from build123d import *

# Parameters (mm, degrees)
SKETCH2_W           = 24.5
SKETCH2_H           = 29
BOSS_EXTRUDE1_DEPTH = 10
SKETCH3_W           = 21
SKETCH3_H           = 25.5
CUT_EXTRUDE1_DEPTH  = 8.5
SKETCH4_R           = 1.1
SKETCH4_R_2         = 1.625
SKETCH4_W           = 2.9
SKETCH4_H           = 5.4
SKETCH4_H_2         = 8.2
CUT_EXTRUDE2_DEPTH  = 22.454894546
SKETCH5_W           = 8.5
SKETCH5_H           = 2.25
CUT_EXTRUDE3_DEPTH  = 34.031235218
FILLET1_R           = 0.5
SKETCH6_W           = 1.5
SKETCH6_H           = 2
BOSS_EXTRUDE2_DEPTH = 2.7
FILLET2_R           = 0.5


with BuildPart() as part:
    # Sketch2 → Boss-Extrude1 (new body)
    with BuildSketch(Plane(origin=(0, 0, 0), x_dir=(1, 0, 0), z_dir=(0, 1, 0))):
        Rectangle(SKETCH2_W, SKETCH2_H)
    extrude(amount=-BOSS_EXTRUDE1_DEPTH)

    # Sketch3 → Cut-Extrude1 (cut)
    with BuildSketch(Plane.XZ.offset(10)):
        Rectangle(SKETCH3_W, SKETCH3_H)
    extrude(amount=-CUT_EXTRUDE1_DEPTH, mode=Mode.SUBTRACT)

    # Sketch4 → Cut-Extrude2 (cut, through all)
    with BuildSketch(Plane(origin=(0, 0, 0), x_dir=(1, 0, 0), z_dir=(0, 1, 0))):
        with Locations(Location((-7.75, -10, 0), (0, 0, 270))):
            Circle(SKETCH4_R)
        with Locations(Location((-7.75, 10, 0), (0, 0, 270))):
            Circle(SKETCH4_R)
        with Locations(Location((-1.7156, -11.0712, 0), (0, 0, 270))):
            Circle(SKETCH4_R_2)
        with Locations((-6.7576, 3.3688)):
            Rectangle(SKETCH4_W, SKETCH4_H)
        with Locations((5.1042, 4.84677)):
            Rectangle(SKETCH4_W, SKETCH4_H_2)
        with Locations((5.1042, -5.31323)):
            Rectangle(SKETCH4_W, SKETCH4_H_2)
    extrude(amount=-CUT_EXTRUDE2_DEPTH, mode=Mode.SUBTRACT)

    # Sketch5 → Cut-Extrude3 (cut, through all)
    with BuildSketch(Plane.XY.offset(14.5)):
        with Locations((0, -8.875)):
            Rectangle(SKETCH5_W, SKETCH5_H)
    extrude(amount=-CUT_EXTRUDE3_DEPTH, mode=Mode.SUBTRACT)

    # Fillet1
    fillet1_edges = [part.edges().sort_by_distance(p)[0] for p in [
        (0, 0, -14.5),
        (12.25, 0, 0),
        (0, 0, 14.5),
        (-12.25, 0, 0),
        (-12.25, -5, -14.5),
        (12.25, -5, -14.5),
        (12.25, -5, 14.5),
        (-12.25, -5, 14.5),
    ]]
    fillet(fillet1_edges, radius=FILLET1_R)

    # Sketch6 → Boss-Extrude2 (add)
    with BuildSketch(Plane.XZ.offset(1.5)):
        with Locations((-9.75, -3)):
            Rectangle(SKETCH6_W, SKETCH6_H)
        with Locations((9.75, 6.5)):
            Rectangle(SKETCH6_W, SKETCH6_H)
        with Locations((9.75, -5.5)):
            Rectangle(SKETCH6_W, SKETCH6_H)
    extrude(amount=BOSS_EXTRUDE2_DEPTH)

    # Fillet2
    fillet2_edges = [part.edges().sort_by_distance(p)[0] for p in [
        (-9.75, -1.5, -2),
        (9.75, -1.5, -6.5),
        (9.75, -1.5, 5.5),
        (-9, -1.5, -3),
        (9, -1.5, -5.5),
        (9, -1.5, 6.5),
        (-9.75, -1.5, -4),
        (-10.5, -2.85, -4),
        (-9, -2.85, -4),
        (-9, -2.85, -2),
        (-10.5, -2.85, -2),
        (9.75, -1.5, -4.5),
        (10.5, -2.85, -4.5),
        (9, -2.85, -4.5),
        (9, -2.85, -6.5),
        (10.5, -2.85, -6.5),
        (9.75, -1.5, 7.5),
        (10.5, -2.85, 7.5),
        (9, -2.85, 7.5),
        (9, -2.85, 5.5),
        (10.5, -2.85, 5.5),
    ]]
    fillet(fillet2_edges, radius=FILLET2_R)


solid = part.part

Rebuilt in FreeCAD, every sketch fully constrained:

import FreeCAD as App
import Part
import Sketcher
from FreeCAD import Vector
Q = App.Units.Quantity


def edges_at(feature, points):
    """Names of the edges that pass closest to the given points."""
    edges = feature.Shape.Edges
    near = lambda p: min(range(len(edges)), key=lambda i: edges[i].distToShape(Part.Vertex(*p))[0])
    return sorted({f"Edge{near(p) + 1}" for p in points})


def add_polygon(sketch, points):
    """Adds a closed chain of lines whose ends are joined by coincident constraints."""
    first, n = sketch.GeometryCount, len(points)
    for a, b in zip(points, points[1:] + points[:1]):
        sketch.addGeometry(Part.LineSegment(App.Vector(*a, 0), App.Vector(*b, 0)), False)
    for i in range(n):
        sketch.addConstraint(Sketcher.Constraint("Coincident", first + i, 2, first + (i + 1) % n, 1))

doc = App.newDocument("Part")
body = doc.addObject("PartDesign::Body", "Body")

sketch1 = body.newObject("Sketcher::SketchObject", "Sketch")
sketch1.AttachmentSupport = (doc.getObject("XZ_Plane"), [""])
sketch1.MapMode = "FlatFace"
add_polygon(sketch1, [(-12.25, -14.5), (-12.25, 14.5), (12.25, 14.5), (12.25, -14.5)])
sketch1.addConstraint(Sketcher.Constraint("Vertical", 0))
sketch1.addConstraint(Sketcher.Constraint("Horizontal", 1))
sketch1.addConstraint(Sketcher.Constraint("Vertical", 2))
sketch1.addConstraint(Sketcher.Constraint("Horizontal", 3))
sketch1.addConstraint(Sketcher.Constraint("Symmetric", 0, 2, 2, 2, -1, 1))
sketch1.addConstraint(Sketcher.Constraint("DistanceY", 0, 1, 0, 2, Q("29 mm")))
sketch1.addConstraint(Sketcher.Constraint("DistanceX", 1, 1, 1, 2, Q("24.5 mm")))
pad1 = body.newObject("PartDesign::Pad", "Pad")
pad1.Profile = sketch1
pad1.Length = 10

sketch2 = body.newObject("Sketcher::SketchObject", "Sketch001")
sketch2.AttachmentSupport = (doc.getObject("XZ_Plane"), [""])
sketch2.MapMode = "FlatFace"
sketch2.AttachmentOffset = App.Placement(Vector(0, 0, 10), App.Rotation())
add_polygon(sketch2, [(-10.5, 12.75), (-10.5, -12.75), (10.5, -12.75), (10.5, 12.75)])
sketch2.addConstraint(Sketcher.Constraint("Vertical", 0))
sketch2.addConstraint(Sketcher.Constraint("Horizontal", 1))
sketch2.addConstraint(Sketcher.Constraint("Vertical", 2))
sketch2.addConstraint(Sketcher.Constraint("Horizontal", 3))
sketch2.addConstraint(Sketcher.Constraint("Symmetric", 0, 2, 2, 2, -1, 1))
sketch2.addConstraint(Sketcher.Constraint("DistanceX", 1, 1, 1, 2, Q("21 mm")))
sketch2.addConstraint(Sketcher.Constraint("DistanceY", 0, 2, 0, 1, Q("25.5 mm")))
pocket1 = body.newObject("PartDesign::Pocket", "Pocket")
pocket1.Profile = sketch2
pocket1.Length = 8.5

sketch3 = body.newObject("Sketcher::SketchObject", "Sketch002")
sketch3.AttachmentSupport = (doc.getObject("XZ_Plane"), [""])
sketch3.MapMode = "FlatFace"
sketch3.addGeometry(Part.Circle(Vector(-7.75, 10, 0), Vector(0, 0, 1), 1.1), False)
sketch3.addGeometry(Part.Circle(Vector(-7.75, -10, 0), Vector(0, 0, 1), 1.1), False)
sketch3.addGeometry(Part.Circle(Vector(-1.7156, 11.0712, 0), Vector(0, 0, 1), 1.625), False)
add_polygon(sketch3, [(-8.2076, -6.0688), (-8.2076, -0.6688), (-5.3076, -0.6688), (-5.3076, -6.0688)])
add_polygon(sketch3, [(3.6542, -8.94677), (3.6542, -0.74677), (6.5542, -0.74677), (6.5542, -8.94677)])
add_polygon(sketch3, [(3.6542, 1.21323), (3.6542, 9.41323), (6.5542, 9.41323), (6.5542, 1.21323)])
sketch3.addConstraint(Sketcher.Constraint("Vertical", 3))
sketch3.addConstraint(Sketcher.Constraint("Horizontal", 4))
sketch3.addConstraint(Sketcher.Constraint("Vertical", 5))
sketch3.addConstraint(Sketcher.Constraint("Horizontal", 6))
sketch3.addConstraint(Sketcher.Constraint("Vertical", 7))
sketch3.addConstraint(Sketcher.Constraint("Horizontal", 8))
sketch3.addConstraint(Sketcher.Constraint("Vertical", 9))
sketch3.addConstraint(Sketcher.Constraint("Horizontal", 10))
sketch3.addConstraint(Sketcher.Constraint("Vertical", 11))
sketch3.addConstraint(Sketcher.Constraint("Horizontal", 12))
sketch3.addConstraint(Sketcher.Constraint("Vertical", 13))
sketch3.addConstraint(Sketcher.Constraint("Horizontal", 14))
sketch3.addConstraint(Sketcher.Constraint("Equal", 0, 1))
sketch3.addConstraint(Sketcher.Constraint("Symmetric", 0, 3, 1, 3, -1))
sketch3.addConstraint(Sketcher.Constraint("Vertical", 10, 2, 11, 2))
sketch3.addConstraint(Sketcher.Constraint("Vertical", 9, 2, 12, 2))
sketch3.addConstraint(Sketcher.Constraint("Equal", 6, 8))
sketch3.addConstraint(Sketcher.Constraint("Equal", 9, 11))
sketch3.addConstraint(Sketcher.Constraint("Diameter", 0, Q("2.2 mm")))
sketch3.addConstraint(Sketcher.Constraint("Diameter", 2, Q("3.25 mm")))
sketch3.addConstraint(Sketcher.Constraint("DistanceX", 4, 1, 4, 2, Q("2.9 mm")))
sketch3.addConstraint(Sketcher.Constraint("DistanceY", 3, 1, 3, 2, Q("5.4 mm")))
sketch3.addConstraint(Sketcher.Constraint("DistanceY", 7, 1, 7, 2, Q("8.2 mm")))
sketch3.addConstraint(Sketcher.Constraint("DistanceY", -1, 1, 0, 3, Q("10 mm")))
sketch3.addConstraint(Sketcher.Constraint("DistanceX", 0, 3, -1, 1, Q("7.75 mm")))
sketch3.addConstraint(Sketcher.Constraint("DistanceY", 3, 2, 2, 3, Q("11.74 mm")))
sketch3.addConstraint(Sketcher.Constraint("DistanceY", 7, 2, 11, 2, Q("10.16 mm")))
sketch3.addConstraint(Sketcher.Constraint("DistanceX", 3, 2, 2, 3, Q("6.492 mm")))
sketch3.addConstraint(Sketcher.Constraint("DistanceX", 2, 3, -1, 1, Q("1.7156 mm")))
sketch3.addConstraint(Sketcher.Constraint("DistanceY", -1, 1, 2, 3, Q("11.0712 mm")))
sketch3.addConstraint(Sketcher.Constraint("DistanceX", -1, 1, 7, 2, Q("3.6542 mm")))
sketch3.addConstraint(Sketcher.Constraint("DistanceY", 7, 2, -1, 1, Q("0.74677 mm")))
pocket2 = body.newObject("PartDesign::Pocket", "Pocket001")
pocket2.Profile = sketch3
pocket2.Type = "ThroughAll"
pocket2.Reversed = True

sketch4 = body.newObject("Sketcher::SketchObject", "Sketch003")
sketch4.AttachmentSupport = (doc.getObject("XY_Plane"), [""])
sketch4.MapMode = "FlatFace"
sketch4.AttachmentOffset = App.Placement(Vector(0, 0, 14.5), App.Rotation())
add_polygon(sketch4, [(-4.25, -7.75), (-4.25, -10), (4.25, -10), (4.25, -7.75)])
sketch4.addConstraint(Sketcher.Constraint("Vertical", 0))
sketch4.addConstraint(Sketcher.Constraint("Horizontal", 1))
sketch4.addConstraint(Sketcher.Constraint("Vertical", 2))
sketch4.addConstraint(Sketcher.Constraint("Horizontal", 3))
sketch4.addConstraint(Sketcher.Constraint("DistanceX", 1, 1, 1, 2, Q("8.5 mm")))
sketch4.addConstraint(Sketcher.Constraint("DistanceY", 0, 2, -1, 1, Q("10 mm")))
sketch4.addConstraint(Sketcher.Constraint("DistanceY", 0, 2, 0, 1, Q("2.25 mm")))
sketch4.addConstraint(Sketcher.Constraint("DistanceX", 0, 2, -1, 1, Q("4.25 mm")))
pocket3 = body.newObject("PartDesign::Pocket", "Pocket002")
pocket3.Profile = sketch4
pocket3.Type = "ThroughAll"
doc.recompute()

fillet = body.newObject("PartDesign::Fillet", "Fillet")
fillet.Base = (pocket3, edges_at(pocket3, [
    (0, 0, -14.5),
    (12.25, 0, 0),
    (0, 0, 14.5),
    (-12.25, 0, 0),
    (-12.25, -5, -14.5),
    (12.25, -5, -14.5),
    (12.25, -5, 14.5),
    (-12.25, -5, 14.5),
]))
fillet.Radius = 0.5

sketch5 = body.newObject("Sketcher::SketchObject", "Sketch004")
sketch5.AttachmentSupport = (doc.getObject("XZ_Plane"), [""])
sketch5.MapMode = "FlatFace"
sketch5.AttachmentOffset = App.Placement(Vector(0, 0, 1.5), App.Rotation())
add_polygon(sketch5, [(-10.5, -2), (-10.5, -4), (-9, -4), (-9, -2)])
add_polygon(sketch5, [(9, 7.5), (9, 5.5), (10.5, 5.5), (10.5, 7.5)])
add_polygon(sketch5, [(9, -4.5), (9, -6.5), (10.5, -6.5), (10.5, -4.5)])
sketch5.addConstraint(Sketcher.Constraint("Vertical", 0))
sketch5.addConstraint(Sketcher.Constraint("Horizontal", 1))
sketch5.addConstraint(Sketcher.Constraint("Vertical", 2))
sketch5.addConstraint(Sketcher.Constraint("Horizontal", 3))
sketch5.addConstraint(Sketcher.Constraint("Vertical", 4))
sketch5.addConstraint(Sketcher.Constraint("Horizontal", 5))
sketch5.addConstraint(Sketcher.Constraint("Vertical", 6))
sketch5.addConstraint(Sketcher.Constraint("Horizontal", 7))
sketch5.addConstraint(Sketcher.Constraint("Vertical", 8))
sketch5.addConstraint(Sketcher.Constraint("Horizontal", 9))
sketch5.addConstraint(Sketcher.Constraint("Vertical", 10))
sketch5.addConstraint(Sketcher.Constraint("Horizontal", 11))
sketch5.addConstraint(Sketcher.Constraint("Vertical", 7, 2, 8, 2))
sketch5.addConstraint(Sketcher.Constraint("Vertical", 6, 2, 9, 2))
sketch5.addConstraint(Sketcher.Constraint("Equal", 3, 5))
sketch5.addConstraint(Sketcher.Constraint("Equal", 2, 4))
sketch5.addConstraint(Sketcher.Constraint("Equal", 6, 8))
sketch5.addConstraint(Sketcher.Constraint("DistanceY", 0, 2, 0, 1, Q("2 mm")))
sketch5.addConstraint(Sketcher.Constraint("DistanceX", 1, 1, 1, 2, Q("1.5 mm")))
sketch5.addConstraint(Sketcher.Constraint("DistanceY", 0, 2, -1, 1, Q("4 mm")))
sketch5.addConstraint(Sketcher.Constraint("DistanceX", 1, 2, -1, 1, Q("9 mm")))
sketch5.addConstraint(Sketcher.Constraint("DistanceX", -1, 1, 4, 2, Q("9 mm")))
sketch5.addConstraint(Sketcher.Constraint("DistanceY", 8, 2, 4, 2, Q("12 mm")))
sketch5.addConstraint(Sketcher.Constraint("DistanceY", -1, 1, 4, 2, Q("5.5 mm")))
pad2 = body.newObject("PartDesign::Pad", "Pad001")
pad2.Profile = sketch5
pad2.Length = 2.7
doc.recompute()

fillet2 = body.newObject("PartDesign::Fillet", "Fillet001")
fillet2.Base = (pad2, edges_at(pad2, [
    (-9.75, -1.5, -2),
    (9.75, -1.5, -6.5),
    (9.75, -1.5, 5.5),
    (-9, -1.5, -3),
    (9, -1.5, -5.5),
    (9, -1.5, 6.5),
    (-9.75, -1.5, -4),
    (-10.5, -2.85, -4),
    (-9, -2.85, -4),
    (-9, -2.85, -2),
    (-10.5, -2.85, -2),
    (9.75, -1.5, -4.5),
    (10.5, -2.85, -4.5),
    (9, -2.85, -4.5),
    (9, -2.85, -6.5),
    (10.5, -2.85, -6.5),
    (9.75, -1.5, 7.5),
    (10.5, -2.85, 7.5),
    (9, -2.85, 7.5),
    (9, -2.85, 5.5),
    (10.5, -2.85, 5.5),
]))
fillet2.Radius = 0.5

doc.recompute()
